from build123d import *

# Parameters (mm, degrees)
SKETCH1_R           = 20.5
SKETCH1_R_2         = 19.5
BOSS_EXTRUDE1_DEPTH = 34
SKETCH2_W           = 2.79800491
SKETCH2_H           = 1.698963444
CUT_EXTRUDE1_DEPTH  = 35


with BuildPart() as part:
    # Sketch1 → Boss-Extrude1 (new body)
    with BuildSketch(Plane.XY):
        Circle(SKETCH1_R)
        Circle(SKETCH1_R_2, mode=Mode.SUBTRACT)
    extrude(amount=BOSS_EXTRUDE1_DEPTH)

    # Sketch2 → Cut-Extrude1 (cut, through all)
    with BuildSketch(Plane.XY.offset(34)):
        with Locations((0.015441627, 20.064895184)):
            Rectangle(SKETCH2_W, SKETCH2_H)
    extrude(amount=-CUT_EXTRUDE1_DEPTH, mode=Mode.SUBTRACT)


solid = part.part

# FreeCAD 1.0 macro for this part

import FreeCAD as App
import Part
import Sketcher
Q = App.Units.Quantity

doc = App.newDocument("Part")
body = doc.addObject("PartDesign::Body", "Body")

# Sketch on XY plane
sketch1 = body.newObject("Sketcher::SketchObject", "Sketch")
sketch1.AttachmentSupport = (doc.getObject("XY_Plane"), [""])
sketch1.MapMode = "FlatFace"
sketch1.addGeometry(Part.Circle(App.Vector(0, 0, 0), App.Vector(0, 0, 1), 20), False)
sketch1.addGeometry(Part.Circle(App.Vector(0, 0, 0), App.Vector(0, 0, 1), 20), False)
sketch1.addConstraint(Sketcher.Constraint("Coincident", 0, 3, -1, 1))
sketch1.addConstraint(Sketcher.Constraint("Coincident", 1, 3, -1, 1))
sketch1.addConstraint(Sketcher.Constraint("Diameter", 0, Q("41 mm")))
sketch1.addConstraint(Sketcher.Constraint("Diameter", 1, Q("39 mm")))
pad1 = body.newObject("PartDesign::Pad", "Pad")
pad1.Profile = sketch1
pad1.Length = 34

# Sketch on XY plane
sketch2 = body.newObject("Sketcher::SketchObject", "Sketch001")
sketch2.AttachmentSupport = (doc.getObject("XY_Plane"), [""])
sketch2.MapMode = "FlatFace"
sketch2.AttachmentOffset = App.Placement(App.Vector(0, 0, 34), App.Rotation())
sketch2.addGeometry(Part.LineSegment(App.Vector(-1.4, 20.9, 0), App.Vector(-1.4, 19.2, 0)), False)
sketch2.addGeometry(Part.LineSegment(App.Vector(-1.4, 19.2, 0), App.Vector(1.4, 19.2, 0)), False)
sketch2.addGeometry(Part.LineSegment(App.Vector(1.4, 19.2, 0), App.Vector(1.4, 20.9, 0)), False)
sketch2.addGeometry(Part.LineSegment(App.Vector(1.4, 20.9, 0), App.Vector(-1.4, 20.9, 0)), False)
sketch2.addConstraint(Sketcher.Constraint("Coincident", 0, 2, 1, 1))
sketch2.addConstraint(Sketcher.Constraint("Coincident", 1, 2, 2, 1))
sketch2.addConstraint(Sketcher.Constraint("Coincident", 2, 2, 3, 1))
sketch2.addConstraint(Sketcher.Constraint("Coincident", 3, 2, 0, 1))
sketch2.addConstraint(Sketcher.Constraint("Vertical", 0))
sketch2.addConstraint(Sketcher.Constraint("Horizontal", 1))
sketch2.addConstraint(Sketcher.Constraint("Vertical", 2))
sketch2.addConstraint(Sketcher.Constraint("Horizontal", 3))
sketch2.addConstraint(Sketcher.Constraint("DistanceX", 1, 1, 1, 2, Q("2.798005 mm")))
sketch2.addConstraint(Sketcher.Constraint("DistanceY", 0, 2, 0, 1, Q("1.698963 mm")))
sketch2.addConstraint(Sketcher.Constraint("DistanceX", 0, 2, -1, 1, Q("1.383561 mm")))
sketch2.addConstraint(Sketcher.Constraint("DistanceY", -1, 1, 0, 2, Q("19.215413 mm")))
pocket1 = body.newObject("PartDesign::Pocket", "Pocket")
pocket1.Profile = sketch2
pocket1.Type = "ThroughAll"

doc.recompute()
